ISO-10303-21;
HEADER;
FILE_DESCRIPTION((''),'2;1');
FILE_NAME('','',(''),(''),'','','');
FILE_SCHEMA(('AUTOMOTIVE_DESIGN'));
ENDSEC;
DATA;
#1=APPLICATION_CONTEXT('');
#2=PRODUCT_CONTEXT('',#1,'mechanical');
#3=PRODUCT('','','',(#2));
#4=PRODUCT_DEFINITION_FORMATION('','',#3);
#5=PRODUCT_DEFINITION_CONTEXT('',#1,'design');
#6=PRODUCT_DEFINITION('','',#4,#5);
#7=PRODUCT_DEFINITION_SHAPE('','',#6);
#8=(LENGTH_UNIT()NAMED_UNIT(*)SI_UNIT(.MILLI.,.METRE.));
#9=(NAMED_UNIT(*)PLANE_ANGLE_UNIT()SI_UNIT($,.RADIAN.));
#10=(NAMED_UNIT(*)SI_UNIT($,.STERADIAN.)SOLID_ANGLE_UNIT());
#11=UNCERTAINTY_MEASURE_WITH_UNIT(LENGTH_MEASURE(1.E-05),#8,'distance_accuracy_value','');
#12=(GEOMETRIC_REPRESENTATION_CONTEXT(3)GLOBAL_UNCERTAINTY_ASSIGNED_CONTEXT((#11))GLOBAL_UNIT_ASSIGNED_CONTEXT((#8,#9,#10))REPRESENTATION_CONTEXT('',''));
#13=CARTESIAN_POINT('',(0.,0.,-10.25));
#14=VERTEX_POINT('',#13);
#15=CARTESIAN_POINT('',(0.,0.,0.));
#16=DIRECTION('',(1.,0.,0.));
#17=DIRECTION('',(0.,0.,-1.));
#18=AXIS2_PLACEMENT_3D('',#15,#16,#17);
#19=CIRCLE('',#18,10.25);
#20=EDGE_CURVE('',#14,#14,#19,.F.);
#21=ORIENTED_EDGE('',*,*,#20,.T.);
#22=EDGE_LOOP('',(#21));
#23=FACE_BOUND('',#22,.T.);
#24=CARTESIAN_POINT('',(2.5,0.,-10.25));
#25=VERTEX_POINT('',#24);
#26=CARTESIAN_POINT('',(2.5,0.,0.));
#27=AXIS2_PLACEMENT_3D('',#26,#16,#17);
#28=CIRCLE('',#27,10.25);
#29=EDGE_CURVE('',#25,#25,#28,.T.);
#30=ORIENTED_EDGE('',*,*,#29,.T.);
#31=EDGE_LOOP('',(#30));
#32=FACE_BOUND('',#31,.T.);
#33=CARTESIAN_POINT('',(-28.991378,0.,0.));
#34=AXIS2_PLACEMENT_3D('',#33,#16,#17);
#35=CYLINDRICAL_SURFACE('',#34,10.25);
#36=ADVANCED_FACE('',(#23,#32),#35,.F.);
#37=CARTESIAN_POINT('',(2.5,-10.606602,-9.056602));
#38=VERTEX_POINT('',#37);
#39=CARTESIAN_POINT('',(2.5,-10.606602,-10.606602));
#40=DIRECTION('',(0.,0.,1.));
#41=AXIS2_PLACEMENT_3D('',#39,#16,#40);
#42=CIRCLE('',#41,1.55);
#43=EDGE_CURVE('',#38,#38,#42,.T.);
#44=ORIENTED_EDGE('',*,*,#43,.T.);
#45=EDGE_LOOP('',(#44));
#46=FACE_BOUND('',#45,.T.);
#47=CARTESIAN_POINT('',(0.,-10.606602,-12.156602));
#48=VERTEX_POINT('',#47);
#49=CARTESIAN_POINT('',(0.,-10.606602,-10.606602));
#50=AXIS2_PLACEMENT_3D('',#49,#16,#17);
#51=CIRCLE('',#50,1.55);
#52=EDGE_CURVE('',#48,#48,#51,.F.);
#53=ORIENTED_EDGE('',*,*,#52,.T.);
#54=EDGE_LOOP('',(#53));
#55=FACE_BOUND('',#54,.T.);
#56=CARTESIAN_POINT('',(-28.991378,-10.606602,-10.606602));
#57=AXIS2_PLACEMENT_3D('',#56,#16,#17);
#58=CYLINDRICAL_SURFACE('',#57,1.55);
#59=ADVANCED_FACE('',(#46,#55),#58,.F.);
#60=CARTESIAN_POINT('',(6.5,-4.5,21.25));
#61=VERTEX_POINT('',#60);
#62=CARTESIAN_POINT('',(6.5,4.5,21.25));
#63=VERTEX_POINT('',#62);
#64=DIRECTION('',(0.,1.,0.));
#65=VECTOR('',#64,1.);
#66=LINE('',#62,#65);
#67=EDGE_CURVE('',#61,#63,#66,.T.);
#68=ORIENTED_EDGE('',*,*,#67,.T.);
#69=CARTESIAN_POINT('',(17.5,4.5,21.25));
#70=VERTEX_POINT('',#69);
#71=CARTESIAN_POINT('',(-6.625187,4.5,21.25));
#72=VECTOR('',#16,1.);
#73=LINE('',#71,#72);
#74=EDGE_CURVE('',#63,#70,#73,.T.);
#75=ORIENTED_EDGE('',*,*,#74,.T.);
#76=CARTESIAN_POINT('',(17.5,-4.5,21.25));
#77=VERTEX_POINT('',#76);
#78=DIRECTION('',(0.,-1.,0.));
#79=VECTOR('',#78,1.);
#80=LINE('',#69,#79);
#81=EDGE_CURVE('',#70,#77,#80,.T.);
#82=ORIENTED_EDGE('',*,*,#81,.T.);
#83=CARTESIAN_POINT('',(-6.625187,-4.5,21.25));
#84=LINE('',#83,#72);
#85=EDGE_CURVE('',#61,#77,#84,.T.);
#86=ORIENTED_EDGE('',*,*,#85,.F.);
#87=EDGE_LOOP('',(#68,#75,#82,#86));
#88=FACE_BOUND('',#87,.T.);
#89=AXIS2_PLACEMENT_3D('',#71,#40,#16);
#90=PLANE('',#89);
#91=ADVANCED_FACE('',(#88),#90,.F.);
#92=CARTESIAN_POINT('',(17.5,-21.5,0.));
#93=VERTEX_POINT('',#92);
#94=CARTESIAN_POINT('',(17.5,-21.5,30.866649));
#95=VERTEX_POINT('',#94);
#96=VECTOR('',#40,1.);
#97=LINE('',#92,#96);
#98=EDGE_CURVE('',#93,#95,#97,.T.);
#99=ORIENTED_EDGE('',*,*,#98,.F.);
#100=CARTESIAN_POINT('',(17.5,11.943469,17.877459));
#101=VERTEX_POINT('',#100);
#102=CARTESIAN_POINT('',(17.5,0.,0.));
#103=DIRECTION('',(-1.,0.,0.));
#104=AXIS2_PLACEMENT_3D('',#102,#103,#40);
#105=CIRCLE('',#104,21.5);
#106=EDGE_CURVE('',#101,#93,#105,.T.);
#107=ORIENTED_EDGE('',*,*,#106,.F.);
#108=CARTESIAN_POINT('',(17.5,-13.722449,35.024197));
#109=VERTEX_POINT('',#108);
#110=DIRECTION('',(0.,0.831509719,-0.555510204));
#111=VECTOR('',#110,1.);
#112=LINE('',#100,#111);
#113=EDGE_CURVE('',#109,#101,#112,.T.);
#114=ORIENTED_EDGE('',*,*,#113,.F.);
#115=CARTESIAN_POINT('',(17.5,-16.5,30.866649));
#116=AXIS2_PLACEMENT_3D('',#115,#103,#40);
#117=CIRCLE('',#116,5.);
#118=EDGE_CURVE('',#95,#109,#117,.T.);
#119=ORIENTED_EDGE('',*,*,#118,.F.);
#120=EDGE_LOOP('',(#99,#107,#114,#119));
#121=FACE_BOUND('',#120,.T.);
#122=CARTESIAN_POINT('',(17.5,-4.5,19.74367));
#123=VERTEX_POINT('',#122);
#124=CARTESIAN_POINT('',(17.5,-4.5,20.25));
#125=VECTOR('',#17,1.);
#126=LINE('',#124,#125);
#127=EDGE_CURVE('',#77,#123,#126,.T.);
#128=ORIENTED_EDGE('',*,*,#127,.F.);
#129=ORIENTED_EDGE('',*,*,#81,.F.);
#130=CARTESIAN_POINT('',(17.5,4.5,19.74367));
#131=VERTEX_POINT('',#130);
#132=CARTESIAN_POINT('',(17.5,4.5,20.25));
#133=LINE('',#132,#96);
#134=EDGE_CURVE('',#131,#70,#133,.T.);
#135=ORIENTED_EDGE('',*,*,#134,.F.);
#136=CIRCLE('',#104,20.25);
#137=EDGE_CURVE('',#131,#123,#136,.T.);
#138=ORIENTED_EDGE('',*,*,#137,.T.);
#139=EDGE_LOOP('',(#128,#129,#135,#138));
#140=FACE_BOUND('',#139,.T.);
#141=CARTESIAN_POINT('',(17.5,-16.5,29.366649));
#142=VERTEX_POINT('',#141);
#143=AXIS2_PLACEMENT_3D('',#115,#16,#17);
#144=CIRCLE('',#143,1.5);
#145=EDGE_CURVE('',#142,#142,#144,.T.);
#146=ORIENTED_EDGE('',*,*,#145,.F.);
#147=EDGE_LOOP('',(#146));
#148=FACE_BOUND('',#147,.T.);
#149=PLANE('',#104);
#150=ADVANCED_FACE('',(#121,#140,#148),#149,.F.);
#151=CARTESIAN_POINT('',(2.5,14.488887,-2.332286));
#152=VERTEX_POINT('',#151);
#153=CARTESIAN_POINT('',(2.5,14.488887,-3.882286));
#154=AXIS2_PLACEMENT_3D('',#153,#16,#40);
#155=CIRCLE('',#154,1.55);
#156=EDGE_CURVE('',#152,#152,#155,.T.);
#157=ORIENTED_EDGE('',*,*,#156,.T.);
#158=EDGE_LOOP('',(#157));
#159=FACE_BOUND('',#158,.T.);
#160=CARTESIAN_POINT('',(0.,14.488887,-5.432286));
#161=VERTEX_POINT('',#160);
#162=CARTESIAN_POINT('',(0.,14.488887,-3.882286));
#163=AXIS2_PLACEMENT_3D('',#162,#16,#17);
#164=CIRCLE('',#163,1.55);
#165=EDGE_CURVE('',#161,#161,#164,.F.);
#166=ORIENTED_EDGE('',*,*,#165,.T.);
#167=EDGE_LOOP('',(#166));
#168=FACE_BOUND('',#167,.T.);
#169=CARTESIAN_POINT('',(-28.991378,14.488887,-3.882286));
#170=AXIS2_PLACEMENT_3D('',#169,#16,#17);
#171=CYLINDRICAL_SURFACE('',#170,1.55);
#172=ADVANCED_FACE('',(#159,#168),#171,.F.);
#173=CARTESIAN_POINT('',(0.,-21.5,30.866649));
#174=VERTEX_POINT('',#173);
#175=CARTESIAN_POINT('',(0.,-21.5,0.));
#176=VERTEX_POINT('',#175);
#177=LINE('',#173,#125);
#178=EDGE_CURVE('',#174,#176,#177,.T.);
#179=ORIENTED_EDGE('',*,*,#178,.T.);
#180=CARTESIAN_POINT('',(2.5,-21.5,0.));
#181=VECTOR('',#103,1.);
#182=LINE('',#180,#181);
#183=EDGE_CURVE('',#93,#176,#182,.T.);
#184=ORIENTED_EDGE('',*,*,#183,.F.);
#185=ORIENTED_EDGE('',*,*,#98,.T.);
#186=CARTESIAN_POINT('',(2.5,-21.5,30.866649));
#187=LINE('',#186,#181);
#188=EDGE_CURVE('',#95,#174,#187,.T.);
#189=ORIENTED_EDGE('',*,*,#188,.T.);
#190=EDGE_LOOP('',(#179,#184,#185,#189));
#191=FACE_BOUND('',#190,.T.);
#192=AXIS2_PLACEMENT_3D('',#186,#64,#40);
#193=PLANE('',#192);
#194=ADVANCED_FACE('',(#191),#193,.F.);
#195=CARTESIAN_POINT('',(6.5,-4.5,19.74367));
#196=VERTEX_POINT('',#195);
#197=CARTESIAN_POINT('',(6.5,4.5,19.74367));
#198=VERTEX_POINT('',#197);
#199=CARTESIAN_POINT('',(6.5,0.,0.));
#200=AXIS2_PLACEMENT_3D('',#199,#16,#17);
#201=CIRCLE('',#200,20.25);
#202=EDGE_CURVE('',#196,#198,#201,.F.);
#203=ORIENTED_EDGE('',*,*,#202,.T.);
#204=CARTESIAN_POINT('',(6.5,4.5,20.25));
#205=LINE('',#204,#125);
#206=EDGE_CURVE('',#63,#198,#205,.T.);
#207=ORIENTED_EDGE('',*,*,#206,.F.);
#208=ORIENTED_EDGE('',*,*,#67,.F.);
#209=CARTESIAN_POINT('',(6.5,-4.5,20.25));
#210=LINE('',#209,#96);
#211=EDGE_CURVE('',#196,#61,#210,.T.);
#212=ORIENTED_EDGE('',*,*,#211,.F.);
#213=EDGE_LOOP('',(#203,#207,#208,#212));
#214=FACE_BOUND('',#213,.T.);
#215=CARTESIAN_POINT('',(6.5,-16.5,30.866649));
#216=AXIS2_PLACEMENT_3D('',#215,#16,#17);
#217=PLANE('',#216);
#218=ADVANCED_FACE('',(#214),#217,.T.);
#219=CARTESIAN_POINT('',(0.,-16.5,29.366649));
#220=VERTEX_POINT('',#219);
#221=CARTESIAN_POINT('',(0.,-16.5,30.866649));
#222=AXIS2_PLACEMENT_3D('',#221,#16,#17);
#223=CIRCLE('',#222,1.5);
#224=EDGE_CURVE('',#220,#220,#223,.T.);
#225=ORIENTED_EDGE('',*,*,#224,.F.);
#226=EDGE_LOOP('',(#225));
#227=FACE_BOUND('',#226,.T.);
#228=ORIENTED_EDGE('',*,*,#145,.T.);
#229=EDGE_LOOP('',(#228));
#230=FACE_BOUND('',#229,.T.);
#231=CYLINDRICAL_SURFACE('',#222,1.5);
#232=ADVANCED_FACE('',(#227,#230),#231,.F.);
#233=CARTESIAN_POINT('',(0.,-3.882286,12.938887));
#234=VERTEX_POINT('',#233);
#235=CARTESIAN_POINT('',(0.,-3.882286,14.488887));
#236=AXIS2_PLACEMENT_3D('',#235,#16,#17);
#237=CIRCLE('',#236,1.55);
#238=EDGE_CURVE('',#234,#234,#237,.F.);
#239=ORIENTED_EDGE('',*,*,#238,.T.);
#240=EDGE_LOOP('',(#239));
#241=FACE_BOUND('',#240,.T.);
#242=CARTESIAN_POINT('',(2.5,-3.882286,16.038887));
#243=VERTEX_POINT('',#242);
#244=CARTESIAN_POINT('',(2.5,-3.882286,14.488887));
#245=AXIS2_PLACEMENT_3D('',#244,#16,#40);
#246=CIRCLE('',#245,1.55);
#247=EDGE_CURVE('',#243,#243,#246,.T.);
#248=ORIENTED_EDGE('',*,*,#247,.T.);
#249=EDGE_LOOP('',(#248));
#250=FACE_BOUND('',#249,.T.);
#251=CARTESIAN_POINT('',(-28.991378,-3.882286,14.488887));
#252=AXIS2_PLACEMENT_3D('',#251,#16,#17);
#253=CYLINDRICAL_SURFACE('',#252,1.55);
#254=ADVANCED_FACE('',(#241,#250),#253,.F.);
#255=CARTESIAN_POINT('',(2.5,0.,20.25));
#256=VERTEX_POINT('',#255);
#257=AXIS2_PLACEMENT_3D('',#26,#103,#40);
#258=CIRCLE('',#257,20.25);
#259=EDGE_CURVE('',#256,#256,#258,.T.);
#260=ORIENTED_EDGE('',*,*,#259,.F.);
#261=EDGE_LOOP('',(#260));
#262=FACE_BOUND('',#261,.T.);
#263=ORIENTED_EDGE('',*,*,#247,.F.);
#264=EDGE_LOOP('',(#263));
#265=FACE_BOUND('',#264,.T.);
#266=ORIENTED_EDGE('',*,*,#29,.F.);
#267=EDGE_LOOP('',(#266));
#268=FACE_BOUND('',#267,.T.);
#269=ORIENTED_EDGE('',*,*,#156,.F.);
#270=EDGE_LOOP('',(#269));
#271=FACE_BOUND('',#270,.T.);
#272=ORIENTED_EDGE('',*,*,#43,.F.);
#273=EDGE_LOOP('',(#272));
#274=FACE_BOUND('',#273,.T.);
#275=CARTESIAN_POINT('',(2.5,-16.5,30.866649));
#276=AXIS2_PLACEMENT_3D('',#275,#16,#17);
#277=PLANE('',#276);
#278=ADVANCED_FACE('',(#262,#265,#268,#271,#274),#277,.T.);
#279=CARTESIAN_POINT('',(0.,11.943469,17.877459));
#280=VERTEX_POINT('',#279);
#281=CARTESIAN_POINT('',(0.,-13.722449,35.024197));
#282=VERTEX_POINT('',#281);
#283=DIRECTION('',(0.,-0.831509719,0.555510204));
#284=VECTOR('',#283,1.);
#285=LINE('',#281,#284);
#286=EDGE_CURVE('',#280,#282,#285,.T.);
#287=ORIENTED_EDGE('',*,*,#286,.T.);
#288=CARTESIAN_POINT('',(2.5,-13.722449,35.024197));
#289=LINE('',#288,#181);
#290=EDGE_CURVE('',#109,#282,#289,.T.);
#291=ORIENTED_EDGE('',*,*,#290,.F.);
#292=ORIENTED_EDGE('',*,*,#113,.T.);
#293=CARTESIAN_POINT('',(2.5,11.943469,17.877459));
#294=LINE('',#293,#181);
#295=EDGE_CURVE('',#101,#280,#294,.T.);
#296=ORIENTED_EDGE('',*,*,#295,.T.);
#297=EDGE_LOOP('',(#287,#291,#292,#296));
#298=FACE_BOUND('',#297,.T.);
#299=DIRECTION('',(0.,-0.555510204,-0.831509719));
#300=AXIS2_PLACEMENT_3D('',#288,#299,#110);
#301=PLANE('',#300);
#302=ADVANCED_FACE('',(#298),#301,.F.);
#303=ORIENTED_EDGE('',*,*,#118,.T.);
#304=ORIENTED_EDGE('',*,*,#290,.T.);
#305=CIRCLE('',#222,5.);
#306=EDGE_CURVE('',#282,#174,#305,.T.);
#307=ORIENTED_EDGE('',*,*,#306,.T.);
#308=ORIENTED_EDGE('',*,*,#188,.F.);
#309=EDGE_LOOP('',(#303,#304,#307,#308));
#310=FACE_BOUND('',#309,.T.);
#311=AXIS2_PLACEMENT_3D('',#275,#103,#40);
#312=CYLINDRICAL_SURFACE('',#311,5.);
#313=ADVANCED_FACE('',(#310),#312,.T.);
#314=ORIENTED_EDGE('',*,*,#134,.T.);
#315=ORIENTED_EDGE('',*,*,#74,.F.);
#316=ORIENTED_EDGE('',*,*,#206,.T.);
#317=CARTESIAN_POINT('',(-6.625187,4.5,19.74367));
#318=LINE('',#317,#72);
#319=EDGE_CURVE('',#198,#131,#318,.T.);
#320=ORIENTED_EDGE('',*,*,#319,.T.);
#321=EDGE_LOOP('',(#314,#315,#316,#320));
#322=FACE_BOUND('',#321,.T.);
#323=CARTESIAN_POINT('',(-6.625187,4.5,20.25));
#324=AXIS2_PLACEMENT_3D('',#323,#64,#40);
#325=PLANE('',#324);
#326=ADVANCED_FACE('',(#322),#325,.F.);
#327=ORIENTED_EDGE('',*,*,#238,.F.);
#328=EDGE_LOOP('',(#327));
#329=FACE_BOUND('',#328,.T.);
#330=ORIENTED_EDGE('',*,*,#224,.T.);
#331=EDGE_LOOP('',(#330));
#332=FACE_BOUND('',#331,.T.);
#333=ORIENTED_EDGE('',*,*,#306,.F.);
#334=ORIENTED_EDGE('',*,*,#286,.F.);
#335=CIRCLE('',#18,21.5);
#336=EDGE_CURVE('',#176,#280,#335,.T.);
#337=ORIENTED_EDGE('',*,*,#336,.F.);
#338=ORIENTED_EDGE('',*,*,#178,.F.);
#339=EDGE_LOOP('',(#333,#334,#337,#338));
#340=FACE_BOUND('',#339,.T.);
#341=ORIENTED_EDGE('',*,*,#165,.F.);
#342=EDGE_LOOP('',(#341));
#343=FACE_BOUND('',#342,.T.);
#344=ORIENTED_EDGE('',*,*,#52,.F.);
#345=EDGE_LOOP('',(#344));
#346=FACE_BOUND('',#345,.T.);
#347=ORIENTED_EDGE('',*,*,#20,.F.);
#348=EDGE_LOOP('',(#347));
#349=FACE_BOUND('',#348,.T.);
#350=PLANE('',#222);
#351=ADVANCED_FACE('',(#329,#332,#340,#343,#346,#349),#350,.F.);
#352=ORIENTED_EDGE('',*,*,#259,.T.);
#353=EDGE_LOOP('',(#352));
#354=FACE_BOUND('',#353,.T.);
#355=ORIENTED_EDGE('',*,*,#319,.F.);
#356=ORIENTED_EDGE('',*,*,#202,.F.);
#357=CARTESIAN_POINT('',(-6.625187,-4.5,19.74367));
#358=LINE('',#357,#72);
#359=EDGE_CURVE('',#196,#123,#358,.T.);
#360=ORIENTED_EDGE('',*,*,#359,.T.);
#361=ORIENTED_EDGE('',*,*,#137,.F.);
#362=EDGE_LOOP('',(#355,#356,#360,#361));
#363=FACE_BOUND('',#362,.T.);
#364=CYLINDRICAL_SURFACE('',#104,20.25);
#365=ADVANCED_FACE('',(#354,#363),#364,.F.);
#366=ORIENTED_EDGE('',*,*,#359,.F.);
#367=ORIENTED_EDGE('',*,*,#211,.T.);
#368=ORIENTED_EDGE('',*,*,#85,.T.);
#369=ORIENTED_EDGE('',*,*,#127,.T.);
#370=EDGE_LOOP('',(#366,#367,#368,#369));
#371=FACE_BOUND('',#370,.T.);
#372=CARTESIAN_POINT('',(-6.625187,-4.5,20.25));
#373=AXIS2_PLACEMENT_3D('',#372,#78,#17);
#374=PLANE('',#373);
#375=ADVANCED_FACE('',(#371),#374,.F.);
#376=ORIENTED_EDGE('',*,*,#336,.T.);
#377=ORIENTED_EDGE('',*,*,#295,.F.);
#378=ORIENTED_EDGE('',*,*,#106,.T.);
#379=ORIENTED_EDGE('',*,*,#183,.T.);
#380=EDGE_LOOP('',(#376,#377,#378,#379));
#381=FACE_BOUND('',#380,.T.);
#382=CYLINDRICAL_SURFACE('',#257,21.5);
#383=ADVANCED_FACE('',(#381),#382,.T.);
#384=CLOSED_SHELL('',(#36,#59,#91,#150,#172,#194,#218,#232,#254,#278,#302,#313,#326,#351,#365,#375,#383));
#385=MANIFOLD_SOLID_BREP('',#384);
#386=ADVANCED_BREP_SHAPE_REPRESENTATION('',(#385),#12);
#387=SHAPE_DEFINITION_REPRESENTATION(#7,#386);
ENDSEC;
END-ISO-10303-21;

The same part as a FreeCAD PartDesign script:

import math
import FreeCAD as App
import Part
import Sketcher


def add_polygon(sketch, points):
    """Adds a closed chain of lines whose ends are joined by coincident constraints."""
    first, n = sketch.GeometryCount, len(points)
    for a, b in zip(points, points[1:] + points[:1]):
        sketch.addGeometry(Part.LineSegment(App.Vector(*a, 0), App.Vector(*b, 0)), False)
    for i in range(n):
        sketch.addConstraint(Sketcher.Constraint("Coincident", first + i, 2, first + (i + 1) % n, 1))

doc = App.newDocument("Part")
body = doc.addObject("PartDesign::Body", "Body")

# Sketch on YZ plane
sketch1 = doc.addObject("Sketcher::SketchObject", "Sketch")
body.addObject(sketch1)
sketch1.AttachmentSupport = (doc.YZ_Plane, [""])
sketch1.MapMode = "FlatFace"
sketch1.addGeometry([
    Part.LineSegment(App.Vector(-21.5, 30.866649, 0), App.Vector(-21.5, 0, 0)),
    Part.ArcOfCircle(Part.Circle(App.Vector(0, 0, 0), App.Vector(0, 0, 1), 21.5), math.radians(180), math.radians(416.254136)),
    Part.LineSegment(App.Vector(11.943469, 17.877459, 0), App.Vector(-13.722449, 35.024197, 0)),
    Part.ArcOfCircle(Part.Circle(App.Vector(-16.5, 30.866649, 0), App.Vector(0, 0, 1), 5), math.radians(56.254136), math.radians(180)),
], False)
sketch1.addConstraint([
    Sketcher.Constraint("Tangent", 0, 2, 1, 1),
    Sketcher.Constraint("Tangent", 1, 2, 2, 1),
    Sketcher.Constraint("Tangent", 2, 2, 3, 1),
    Sketcher.Constraint("Tangent", 3, 2, 0, 1),
    Sketcher.Constraint("Vertical", 0),
    Sketcher.Constraint("Coincident", 1, 3, -1, 1),
    Sketcher.Constraint("Radius", 3, 5.0),
    Sketcher.Constraint("Radius", 1, 21.5),
    Sketcher.Constraint("DistanceY", 0, 2, 0, 1, 30.866649),
])
pad1 = doc.addObject("PartDesign::Pad", "Pad")
body.addObject(pad1)
pad1.Profile = sketch1
pad1.Length = 2.5

# Sketch on YZ plane
sketch2 = doc.addObject("Sketcher::SketchObject", "Sketch001")
body.addObject(sketch2)
sketch2.AttachmentSupport = (doc.YZ_Plane, [""])
sketch2.MapMode = "FlatFace"
sketch2.AttachmentOffset = App.Placement(App.Vector(0, 0, 2.5), App.Rotation())
sketch2.addGeometry([
    Part.Circle(App.Vector(0, 0, 0), App.Vector(0, 0, 1), 10.25),
    Part.Circle(App.Vector(14.488887, -3.882286, 0), App.Vector(0, 0, 1), 1.55),
    Part.Circle(App.Vector(-10.606602, -10.606602, 0), App.Vector(0, 0, 1), 1.55),
    Part.Circle(App.Vector(-3.882286, 14.488887, 0), App.Vector(0, 0, 1), 1.55),
], False)
sketch2.addConstraint([
    Sketcher.Constraint("Coincident", 0, 3, -1, 1),
    Sketcher.Constraint("Equal", 1, 2),
    Sketcher.Constraint("Equal", 2, 3),
    Sketcher.Constraint("Diameter", 0, 20.5),
    Sketcher.Constraint("Diameter", 1, 3.1),
    Sketcher.Constraint("DistanceX", 2, 3, -1, 1, 10.606602),
    Sketcher.Constraint("DistanceY", 2, 3, -1, 1, 10.606602),
    Sketcher.Constraint("DistanceX", 2, 3, 1, 3, 25.095489),
    Sketcher.Constraint("DistanceY", 2, 3, 3, 3, 25.095489),
    Sketcher.Constraint("DistanceY", 1, 3, -1, 1, 3.882286),
    Sketcher.Constraint("DistanceX", 3, 3, -1, 1, 3.882286),
])
pocket1 = doc.addObject("PartDesign::Pocket", "Pocket")
body.addObject(pocket1)
pocket1.Profile = sketch2
pocket1.Length = 2.5

# Sketch on YZ plane
sketch3 = doc.addObject("Sketcher::SketchObject", "Sketch002")
body.addObject(sketch3)
sketch3.AttachmentSupport = (doc.YZ_Plane, [""])
sketch3.MapMode = "FlatFace"
sketch3.AttachmentOffset = App.Placement(App.Vector(0, 0, 2.5), App.Rotation())
sketch3.addGeometry([
    Part.LineSegment(App.Vector(-21.5, 0, 0), App.Vector(-21.5, 30.866649, 0)),  # 0
    Part.ArcOfCircle(Part.Circle(App.Vector(-16.5, 30.866649, 0), App.Vector(0, 0, 1), 5), math.radians(56.254136), math.radians(180)),  # 1
    Part.LineSegment(App.Vector(-13.722449, 35.024197, 0), App.Vector(11.943469, 17.877459, 0)),  # 2
    Part.ArcOfCircle(Part.Circle(App.Vector(0, 0, 0), App.Vector(0, 0, 1), 21.5), math.radians(180), math.radians(416.254136)),  # 3
    Part.Circle(App.Vector(0, 0, 0), App.Vector(0, 0, 1), 20.25),  # 4
], False)
sketch3.addConstraint([
    Sketcher.Constraint("Tangent", 0, 2, 1, 2),
    Sketcher.Constraint("Tangent", 1, 1, 2, 1),
    Sketcher.Constraint("Tangent", 2, 2, 3, 2),
    Sketcher.Constraint("Tangent", 3, 1, 0, 1),
    Sketcher.Constraint("Vertical", 0),
    Sketcher.Constraint("Coincident", 3, 3, -1, 1),
    Sketcher.Constraint("Coincident", 4, 3, -1, 1),
    Sketcher.Constraint("Radius", 1, 5.0),
    Sketcher.Constraint("Diameter", 4, 40.5),
    Sketcher.Constraint("Radius", 3, 21.5),
    Sketcher.Constraint("DistanceY", 0, 1, 0, 2, 30.866649),
])
pad2 = doc.addObject("PartDesign::Pad", "Pad001")
body.addObject(pad2)
pad2.Profile = sketch3
pad2.Length = 15

# Sketch on YZ plane
sketch4 = doc.addObject("Sketcher::SketchObject", "Sketch003")
body.addObject(sketch4)
sketch4.AttachmentSupport = (doc.YZ_Plane, [""])
sketch4.MapMode = "FlatFace"
sketch4.AttachmentOffset = App.Placement(App.Vector(0, 0, 17.5), App.Rotation())
sketch4.addGeometry(Part.Circle(App.Vector(-16.5, 30.866649, 0), App.Vector(0, 0, 1), 1.5), False)
sketch4.addConstraint([
    Sketcher.Constraint("Diameter", 0, 3.0),
    Sketcher.Constraint("DistanceX", 0, 3, -1, 1, 16.5),
    Sketcher.Constraint("DistanceY", -1, 1, 0, 3, 30.866649),
])
pocket2 = doc.addObject("PartDesign::Pocket", "Pocket001")
body.addObject(pocket2)
pocket2.Profile = sketch4
pocket2.Type = "ThroughAll"

# Sketch on YZ plane
sketch5 = doc.addObject("Sketcher::SketchObject", "Sketch004")
body.addObject(sketch5)
sketch5.AttachmentSupport = (doc.YZ_Plane, [""])
sketch5.MapMode = "FlatFace"
sketch5.AttachmentOffset = App.Placement(App.Vector(0, 0, 17.5), App.Rotation())
add_polygon(sketch5, [(4.5, 19.74367), (4.5, 21.25), (-4.5, 21.25), (-4.5, 19.74367)])  # lines 0-3
sketch5.addConstraint([
    Sketcher.Constraint("Vertical", 0),
    Sketcher.Constraint("Horizontal", 1),
    Sketcher.Constraint("Vertical", 2),
    Sketcher.Constraint("Horizontal", 3),
    Sketcher.Constraint("DistanceX", 1, 2, 1, 1, 9.0),
    Sketcher.Constraint("DistanceX", -1, 1, 0, 2, 4.5),
    Sketcher.Constraint("DistanceY", -1, 1, 0, 2, 21.25),
    Sketcher.Constraint("DistanceY", 0, 1, 0, 2, 1.50633),
])
pocket3 = doc.addObject("PartDesign::Pocket", "Pocket002")
body.addObject(pocket3)
pocket3.Profile = sketch5
pocket3.Length = 11

doc.recompute()
